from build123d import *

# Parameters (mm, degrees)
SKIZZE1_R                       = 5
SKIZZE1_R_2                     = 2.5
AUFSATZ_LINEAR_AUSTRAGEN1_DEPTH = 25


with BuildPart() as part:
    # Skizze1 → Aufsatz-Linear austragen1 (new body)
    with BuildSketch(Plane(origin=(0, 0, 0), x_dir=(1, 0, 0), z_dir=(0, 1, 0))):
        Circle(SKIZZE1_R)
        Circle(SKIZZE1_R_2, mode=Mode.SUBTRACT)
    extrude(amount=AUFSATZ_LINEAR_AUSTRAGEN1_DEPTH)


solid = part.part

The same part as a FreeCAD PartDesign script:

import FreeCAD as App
import Part
import Sketcher
from FreeCAD import Vector
Q = App.Units.Quantity

doc = App.newDocument("Part")
body = doc.addObject("PartDesign::Body", "Body")

# Sketch on XZ plane
sketch1 = doc.addObject("Sketcher::SketchObject", "Sketch")
body.addObject(sketch1)
sketch1.AttachmentSupport = (doc.XZ_Plane, [""])
sketch1.MapMode = "FlatFace"
sketch1.addGeometry(Part.Circle(Vector(0, 0, 0), Vector(0, 0, 1), 5), False)
sketch1.addGeometry(Part.Circle(Vector(0, 0, 0), Vector(0, 0, 1), 2.5), False)
sketch1.addConstraint(Sketcher.Constraint("Coincident", 0, 3, -1, 1))
sketch1.addConstraint(Sketcher.Constraint("Coincident", 1, 3, -1, 1))
sketch1.addConstraint(Sketcher.Constraint("Diameter", 0, Q("10 mm")))
sketch1.addConstraint(Sketcher.Constraint("Diameter", 1, Q("5 mm")))
pad1 = doc.addObject("PartDesign::Pad", "Pad")
body.addObject(pad1)
pad1.Profile = sketch1
pad1.Length = 25
pad1.Reversed = True

doc.recompute()
